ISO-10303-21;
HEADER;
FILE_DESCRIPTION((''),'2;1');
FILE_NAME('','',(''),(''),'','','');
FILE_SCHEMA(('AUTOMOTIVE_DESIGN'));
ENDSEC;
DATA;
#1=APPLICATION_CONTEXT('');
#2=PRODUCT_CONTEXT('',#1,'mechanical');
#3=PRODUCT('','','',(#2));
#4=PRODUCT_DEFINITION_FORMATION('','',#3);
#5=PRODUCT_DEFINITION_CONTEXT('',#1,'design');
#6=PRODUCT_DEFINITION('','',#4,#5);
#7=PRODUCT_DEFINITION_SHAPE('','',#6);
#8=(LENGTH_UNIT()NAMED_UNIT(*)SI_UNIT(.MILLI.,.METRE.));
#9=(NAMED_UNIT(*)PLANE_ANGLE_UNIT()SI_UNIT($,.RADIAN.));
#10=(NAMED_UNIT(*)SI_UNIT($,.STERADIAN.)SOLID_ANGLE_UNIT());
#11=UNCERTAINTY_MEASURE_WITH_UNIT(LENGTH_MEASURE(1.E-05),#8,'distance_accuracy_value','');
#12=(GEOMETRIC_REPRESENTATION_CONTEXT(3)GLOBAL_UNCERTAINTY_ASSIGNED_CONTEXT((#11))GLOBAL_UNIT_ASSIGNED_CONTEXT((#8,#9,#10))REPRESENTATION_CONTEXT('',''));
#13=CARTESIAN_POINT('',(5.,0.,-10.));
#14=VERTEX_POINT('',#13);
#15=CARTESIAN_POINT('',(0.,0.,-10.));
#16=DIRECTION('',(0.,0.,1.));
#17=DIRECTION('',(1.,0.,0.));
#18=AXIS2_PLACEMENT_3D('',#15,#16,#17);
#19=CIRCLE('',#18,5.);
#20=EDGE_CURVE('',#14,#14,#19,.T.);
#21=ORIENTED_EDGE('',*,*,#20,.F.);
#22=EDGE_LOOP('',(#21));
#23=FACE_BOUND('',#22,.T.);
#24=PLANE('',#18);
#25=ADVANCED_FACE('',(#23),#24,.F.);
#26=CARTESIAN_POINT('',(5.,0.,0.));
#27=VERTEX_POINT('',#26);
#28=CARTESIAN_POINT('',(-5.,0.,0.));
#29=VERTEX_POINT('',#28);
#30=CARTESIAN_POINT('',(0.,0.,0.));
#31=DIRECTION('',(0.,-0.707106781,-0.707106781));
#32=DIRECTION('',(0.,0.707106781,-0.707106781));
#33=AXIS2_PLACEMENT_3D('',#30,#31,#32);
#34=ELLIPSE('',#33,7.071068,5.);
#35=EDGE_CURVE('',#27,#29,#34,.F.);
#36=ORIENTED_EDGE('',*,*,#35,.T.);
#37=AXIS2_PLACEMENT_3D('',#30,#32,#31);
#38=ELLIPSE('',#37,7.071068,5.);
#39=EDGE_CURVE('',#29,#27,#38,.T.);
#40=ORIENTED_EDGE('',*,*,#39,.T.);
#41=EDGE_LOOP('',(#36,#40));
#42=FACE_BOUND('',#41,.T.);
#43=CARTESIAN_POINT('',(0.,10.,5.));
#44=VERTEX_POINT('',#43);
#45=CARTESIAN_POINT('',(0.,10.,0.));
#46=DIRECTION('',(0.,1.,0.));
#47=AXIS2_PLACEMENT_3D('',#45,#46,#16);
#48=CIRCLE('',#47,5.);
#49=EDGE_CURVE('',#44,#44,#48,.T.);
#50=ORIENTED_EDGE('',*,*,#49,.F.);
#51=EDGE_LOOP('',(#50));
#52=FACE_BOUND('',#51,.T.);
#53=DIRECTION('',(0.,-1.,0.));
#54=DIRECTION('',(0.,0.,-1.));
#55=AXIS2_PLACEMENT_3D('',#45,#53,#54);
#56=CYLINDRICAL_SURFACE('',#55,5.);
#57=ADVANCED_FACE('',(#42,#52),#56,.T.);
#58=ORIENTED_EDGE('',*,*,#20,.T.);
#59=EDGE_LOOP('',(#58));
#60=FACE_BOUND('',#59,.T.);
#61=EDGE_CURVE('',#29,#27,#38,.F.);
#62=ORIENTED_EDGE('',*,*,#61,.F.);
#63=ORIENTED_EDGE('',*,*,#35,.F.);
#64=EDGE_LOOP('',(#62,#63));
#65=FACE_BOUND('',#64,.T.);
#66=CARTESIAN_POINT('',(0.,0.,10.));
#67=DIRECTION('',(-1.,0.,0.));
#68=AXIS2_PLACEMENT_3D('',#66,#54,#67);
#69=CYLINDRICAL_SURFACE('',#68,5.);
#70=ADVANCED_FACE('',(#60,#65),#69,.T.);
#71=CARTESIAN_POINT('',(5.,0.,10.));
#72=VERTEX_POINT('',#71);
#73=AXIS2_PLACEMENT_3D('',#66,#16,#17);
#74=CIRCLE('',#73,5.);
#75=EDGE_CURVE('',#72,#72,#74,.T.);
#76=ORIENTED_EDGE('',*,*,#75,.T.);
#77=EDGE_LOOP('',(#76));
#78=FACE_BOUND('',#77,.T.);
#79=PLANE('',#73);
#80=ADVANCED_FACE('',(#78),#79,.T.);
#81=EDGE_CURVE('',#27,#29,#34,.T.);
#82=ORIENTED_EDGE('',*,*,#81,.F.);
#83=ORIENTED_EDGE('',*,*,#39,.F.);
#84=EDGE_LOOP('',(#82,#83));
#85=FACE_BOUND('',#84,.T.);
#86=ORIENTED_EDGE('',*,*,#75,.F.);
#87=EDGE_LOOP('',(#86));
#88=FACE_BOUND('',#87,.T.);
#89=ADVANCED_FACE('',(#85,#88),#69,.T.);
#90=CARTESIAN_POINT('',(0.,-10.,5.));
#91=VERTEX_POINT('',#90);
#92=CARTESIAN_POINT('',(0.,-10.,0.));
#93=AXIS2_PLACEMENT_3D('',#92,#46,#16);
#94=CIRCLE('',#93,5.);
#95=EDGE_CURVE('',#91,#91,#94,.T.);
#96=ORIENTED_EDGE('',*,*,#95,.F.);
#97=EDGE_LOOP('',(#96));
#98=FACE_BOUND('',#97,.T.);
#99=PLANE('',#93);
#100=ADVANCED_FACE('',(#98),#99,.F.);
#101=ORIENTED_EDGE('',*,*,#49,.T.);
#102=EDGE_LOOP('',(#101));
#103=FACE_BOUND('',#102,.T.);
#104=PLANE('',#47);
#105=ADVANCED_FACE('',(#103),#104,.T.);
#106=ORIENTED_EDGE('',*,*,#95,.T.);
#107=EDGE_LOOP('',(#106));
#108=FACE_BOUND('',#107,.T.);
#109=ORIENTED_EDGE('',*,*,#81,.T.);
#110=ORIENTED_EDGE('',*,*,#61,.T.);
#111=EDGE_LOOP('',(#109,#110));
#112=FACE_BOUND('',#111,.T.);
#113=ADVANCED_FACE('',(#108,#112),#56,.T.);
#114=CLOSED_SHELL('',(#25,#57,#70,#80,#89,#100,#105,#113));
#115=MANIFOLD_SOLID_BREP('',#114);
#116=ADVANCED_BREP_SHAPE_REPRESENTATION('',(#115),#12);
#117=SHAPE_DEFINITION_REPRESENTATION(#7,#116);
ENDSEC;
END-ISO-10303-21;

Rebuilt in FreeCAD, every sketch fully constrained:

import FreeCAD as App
import Part
import Sketcher

V = App.Vector
Q = App.Units.Quantity

doc = App.newDocument("Part")
body = doc.addObject("PartDesign::Body", "Body")

sketch1 = body.newObject("Sketcher::SketchObject", "Sketch")
sketch1.AttachmentSupport = (doc.getObject("XY_Plane"), [""])
sketch1.MapMode = "FlatFace"
sketch1.addGeometry(Part.Circle(V(0, 0, 0), V(0, 0, 1), 5), False)
sketch1.addConstraint(Sketcher.Constraint("Coincident", 0, 3, -1, 1))
sketch1.addConstraint(Sketcher.Constraint("Diameter", 0, Q("10 mm")))
pad1 = body.newObject("PartDesign::Pad", "Pad")
pad1.Profile = sketch1
pad1.Length = 20
pad1.Midplane = True

sketch2 = body.newObject("Sketcher::SketchObject", "Sketch001")
sketch2.AttachmentSupport = (doc.getObject("XZ_Plane"), [""])
sketch2.MapMode = "FlatFace"
sketch2.addGeometry(Part.Circle(V(0, 0, 0), V(0, 0, 1), 5), False)
sketch2.addConstraint(Sketcher.Constraint("Coincident", 0, 3, -1, 1))
sketch2.addConstraint(Sketcher.Constraint("Diameter", 0, Q("10 mm")))
pad2 = body.newObject("PartDesign::Pad", "Pad001")
pad2.Profile = sketch2
pad2.Length = 20
pad2.Midplane = True

doc.recompute()
